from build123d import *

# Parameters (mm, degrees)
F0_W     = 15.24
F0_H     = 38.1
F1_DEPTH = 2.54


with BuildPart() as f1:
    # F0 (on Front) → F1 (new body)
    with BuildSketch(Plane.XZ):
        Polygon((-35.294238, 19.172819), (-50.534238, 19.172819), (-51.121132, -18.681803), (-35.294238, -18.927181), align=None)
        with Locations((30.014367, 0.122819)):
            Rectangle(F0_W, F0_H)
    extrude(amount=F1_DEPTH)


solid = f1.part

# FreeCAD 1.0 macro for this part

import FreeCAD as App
import Part
import Sketcher
from FreeCAD import Vector
Q = App.Units.Quantity

doc = App.newDocument("Part")
params = doc.addObject("Spreadsheet::Sheet", "Params")
for row, (alias, value) in enumerate([
    ("sketch1_width", "0.6 in"),
    ("sketch1_height", "1.5 in"),
    ("pad1_length", "0.1 in"),
], start=1):
    params.set(f"A{row}", alias)
    params.set(f"B{row}", "=" + value)
    params.setAlias(f"B{row}", alias)

body = doc.addObject("PartDesign::Body", "Body")
body.AllowCompound = True

sketch1 = body.newObject("Sketcher::SketchObject", "Sketch")
sketch1.AttachmentSupport = (doc.getObject("XZ_Plane"), [""])
sketch1.MapMode = "FlatFace"
sketch1.addGeometry(Part.LineSegment(Vector(-35.294238, 19.172819, 0), Vector(-50.534238, 19.172819, 0)), False)
sketch1.addGeometry(Part.LineSegment(Vector(-50.534238, 19.172819, 0), Vector(-51.121132, -18.681803, 0)), False)
sketch1.addGeometry(Part.LineSegment(Vector(-51.121132, -18.681803, 0), Vector(-35.294238, -18.927181, 0)), False)
sketch1.addGeometry(Part.LineSegment(Vector(-35.294238, -18.927181, 0), Vector(-35.294238, 19.172819, 0)), False)
sketch1.addGeometry(Part.LineSegment(Vector(22.394367, 19.172819, 0), Vector(22.394367, -18.927181, 0)), False)
sketch1.addGeometry(Part.LineSegment(Vector(22.394367, -18.927181, 0), Vector(37.634367, -18.927181, 0)), False)
sketch1.addGeometry(Part.LineSegment(Vector(37.634367, -18.927181, 0), Vector(37.634367, 19.172819, 0)), False)
sketch1.addGeometry(Part.LineSegment(Vector(37.634367, 19.172819, 0), Vector(22.394367, 19.172819, 0)), False)
sketch1.addConstraint(Sketcher.Constraint("Coincident", 0, 2, 1, 1))
sketch1.addConstraint(Sketcher.Constraint("Coincident", 1, 2, 2, 1))
sketch1.addConstraint(Sketcher.Constraint("Coincident", 2, 2, 3, 1))
sketch1.addConstraint(Sketcher.Constraint("Coincident", 3, 2, 0, 1))
sketch1.addConstraint(Sketcher.Constraint("Coincident", 4, 2, 5, 1))
sketch1.addConstraint(Sketcher.Constraint("Coincident", 5, 2, 6, 1))
sketch1.addConstraint(Sketcher.Constraint("Coincident", 6, 2, 7, 1))
sketch1.addConstraint(Sketcher.Constraint("Coincident", 7, 2, 4, 1))
sketch1.addConstraint(Sketcher.Constraint("Horizontal", 0))
sketch1.addConstraint(Sketcher.Constraint("Vertical", 3))
sketch1.addConstraint(Sketcher.Constraint("Vertical", 4))
sketch1.addConstraint(Sketcher.Constraint("Horizontal", 5))
sketch1.addConstraint(Sketcher.Constraint("Vertical", 6))
sketch1.addConstraint(Sketcher.Constraint("Horizontal", 7))
sketch1.addConstraint(Sketcher.Constraint("Perpendicular", 1, 2))
sketch1.addConstraint(Sketcher.Constraint("Horizontal", 2, 2, 4, 2))
sketch1.addConstraint(Sketcher.Constraint("Horizontal", 3, 2, 6, 2))
sketch1.addConstraint(Sketcher.Constraint("Equal", 0, 5))
sketch1.addConstraint(Sketcher.Constraint("DistanceX", 0, 2, 0, 1, Q("0.6 in")))
sketch1.addConstraint(Sketcher.Constraint("DistanceY", 3, 1, 3, 2, Q("1.5 in")))
sketch1.addConstraint(Sketcher.Constraint("DistanceX", 1, 2, 4, 2, Q("73.515499 mm")))
sketch1.addConstraint(Sketcher.Constraint("Distance", 1, Q("37.859171 mm")))
sketch1.addConstraint(Sketcher.Constraint("DistanceX", 0, 2, -1, 1, Q("50.534238 mm")))
sketch1.addConstraint(Sketcher.Constraint("DistanceY", -1, 1, 0, 2, Q("19.172819 mm")))
sketch1.setExpression("Constraints[18]", "Params.sketch1_width")
sketch1.setExpression("Constraints[19]", "Params.sketch1_height")
pad1 = body.newObject("PartDesign::Pad", "Pad")
pad1.Profile = sketch1
pad1.setExpression("Length", "Params.pad1_length")

doc.recompute()
